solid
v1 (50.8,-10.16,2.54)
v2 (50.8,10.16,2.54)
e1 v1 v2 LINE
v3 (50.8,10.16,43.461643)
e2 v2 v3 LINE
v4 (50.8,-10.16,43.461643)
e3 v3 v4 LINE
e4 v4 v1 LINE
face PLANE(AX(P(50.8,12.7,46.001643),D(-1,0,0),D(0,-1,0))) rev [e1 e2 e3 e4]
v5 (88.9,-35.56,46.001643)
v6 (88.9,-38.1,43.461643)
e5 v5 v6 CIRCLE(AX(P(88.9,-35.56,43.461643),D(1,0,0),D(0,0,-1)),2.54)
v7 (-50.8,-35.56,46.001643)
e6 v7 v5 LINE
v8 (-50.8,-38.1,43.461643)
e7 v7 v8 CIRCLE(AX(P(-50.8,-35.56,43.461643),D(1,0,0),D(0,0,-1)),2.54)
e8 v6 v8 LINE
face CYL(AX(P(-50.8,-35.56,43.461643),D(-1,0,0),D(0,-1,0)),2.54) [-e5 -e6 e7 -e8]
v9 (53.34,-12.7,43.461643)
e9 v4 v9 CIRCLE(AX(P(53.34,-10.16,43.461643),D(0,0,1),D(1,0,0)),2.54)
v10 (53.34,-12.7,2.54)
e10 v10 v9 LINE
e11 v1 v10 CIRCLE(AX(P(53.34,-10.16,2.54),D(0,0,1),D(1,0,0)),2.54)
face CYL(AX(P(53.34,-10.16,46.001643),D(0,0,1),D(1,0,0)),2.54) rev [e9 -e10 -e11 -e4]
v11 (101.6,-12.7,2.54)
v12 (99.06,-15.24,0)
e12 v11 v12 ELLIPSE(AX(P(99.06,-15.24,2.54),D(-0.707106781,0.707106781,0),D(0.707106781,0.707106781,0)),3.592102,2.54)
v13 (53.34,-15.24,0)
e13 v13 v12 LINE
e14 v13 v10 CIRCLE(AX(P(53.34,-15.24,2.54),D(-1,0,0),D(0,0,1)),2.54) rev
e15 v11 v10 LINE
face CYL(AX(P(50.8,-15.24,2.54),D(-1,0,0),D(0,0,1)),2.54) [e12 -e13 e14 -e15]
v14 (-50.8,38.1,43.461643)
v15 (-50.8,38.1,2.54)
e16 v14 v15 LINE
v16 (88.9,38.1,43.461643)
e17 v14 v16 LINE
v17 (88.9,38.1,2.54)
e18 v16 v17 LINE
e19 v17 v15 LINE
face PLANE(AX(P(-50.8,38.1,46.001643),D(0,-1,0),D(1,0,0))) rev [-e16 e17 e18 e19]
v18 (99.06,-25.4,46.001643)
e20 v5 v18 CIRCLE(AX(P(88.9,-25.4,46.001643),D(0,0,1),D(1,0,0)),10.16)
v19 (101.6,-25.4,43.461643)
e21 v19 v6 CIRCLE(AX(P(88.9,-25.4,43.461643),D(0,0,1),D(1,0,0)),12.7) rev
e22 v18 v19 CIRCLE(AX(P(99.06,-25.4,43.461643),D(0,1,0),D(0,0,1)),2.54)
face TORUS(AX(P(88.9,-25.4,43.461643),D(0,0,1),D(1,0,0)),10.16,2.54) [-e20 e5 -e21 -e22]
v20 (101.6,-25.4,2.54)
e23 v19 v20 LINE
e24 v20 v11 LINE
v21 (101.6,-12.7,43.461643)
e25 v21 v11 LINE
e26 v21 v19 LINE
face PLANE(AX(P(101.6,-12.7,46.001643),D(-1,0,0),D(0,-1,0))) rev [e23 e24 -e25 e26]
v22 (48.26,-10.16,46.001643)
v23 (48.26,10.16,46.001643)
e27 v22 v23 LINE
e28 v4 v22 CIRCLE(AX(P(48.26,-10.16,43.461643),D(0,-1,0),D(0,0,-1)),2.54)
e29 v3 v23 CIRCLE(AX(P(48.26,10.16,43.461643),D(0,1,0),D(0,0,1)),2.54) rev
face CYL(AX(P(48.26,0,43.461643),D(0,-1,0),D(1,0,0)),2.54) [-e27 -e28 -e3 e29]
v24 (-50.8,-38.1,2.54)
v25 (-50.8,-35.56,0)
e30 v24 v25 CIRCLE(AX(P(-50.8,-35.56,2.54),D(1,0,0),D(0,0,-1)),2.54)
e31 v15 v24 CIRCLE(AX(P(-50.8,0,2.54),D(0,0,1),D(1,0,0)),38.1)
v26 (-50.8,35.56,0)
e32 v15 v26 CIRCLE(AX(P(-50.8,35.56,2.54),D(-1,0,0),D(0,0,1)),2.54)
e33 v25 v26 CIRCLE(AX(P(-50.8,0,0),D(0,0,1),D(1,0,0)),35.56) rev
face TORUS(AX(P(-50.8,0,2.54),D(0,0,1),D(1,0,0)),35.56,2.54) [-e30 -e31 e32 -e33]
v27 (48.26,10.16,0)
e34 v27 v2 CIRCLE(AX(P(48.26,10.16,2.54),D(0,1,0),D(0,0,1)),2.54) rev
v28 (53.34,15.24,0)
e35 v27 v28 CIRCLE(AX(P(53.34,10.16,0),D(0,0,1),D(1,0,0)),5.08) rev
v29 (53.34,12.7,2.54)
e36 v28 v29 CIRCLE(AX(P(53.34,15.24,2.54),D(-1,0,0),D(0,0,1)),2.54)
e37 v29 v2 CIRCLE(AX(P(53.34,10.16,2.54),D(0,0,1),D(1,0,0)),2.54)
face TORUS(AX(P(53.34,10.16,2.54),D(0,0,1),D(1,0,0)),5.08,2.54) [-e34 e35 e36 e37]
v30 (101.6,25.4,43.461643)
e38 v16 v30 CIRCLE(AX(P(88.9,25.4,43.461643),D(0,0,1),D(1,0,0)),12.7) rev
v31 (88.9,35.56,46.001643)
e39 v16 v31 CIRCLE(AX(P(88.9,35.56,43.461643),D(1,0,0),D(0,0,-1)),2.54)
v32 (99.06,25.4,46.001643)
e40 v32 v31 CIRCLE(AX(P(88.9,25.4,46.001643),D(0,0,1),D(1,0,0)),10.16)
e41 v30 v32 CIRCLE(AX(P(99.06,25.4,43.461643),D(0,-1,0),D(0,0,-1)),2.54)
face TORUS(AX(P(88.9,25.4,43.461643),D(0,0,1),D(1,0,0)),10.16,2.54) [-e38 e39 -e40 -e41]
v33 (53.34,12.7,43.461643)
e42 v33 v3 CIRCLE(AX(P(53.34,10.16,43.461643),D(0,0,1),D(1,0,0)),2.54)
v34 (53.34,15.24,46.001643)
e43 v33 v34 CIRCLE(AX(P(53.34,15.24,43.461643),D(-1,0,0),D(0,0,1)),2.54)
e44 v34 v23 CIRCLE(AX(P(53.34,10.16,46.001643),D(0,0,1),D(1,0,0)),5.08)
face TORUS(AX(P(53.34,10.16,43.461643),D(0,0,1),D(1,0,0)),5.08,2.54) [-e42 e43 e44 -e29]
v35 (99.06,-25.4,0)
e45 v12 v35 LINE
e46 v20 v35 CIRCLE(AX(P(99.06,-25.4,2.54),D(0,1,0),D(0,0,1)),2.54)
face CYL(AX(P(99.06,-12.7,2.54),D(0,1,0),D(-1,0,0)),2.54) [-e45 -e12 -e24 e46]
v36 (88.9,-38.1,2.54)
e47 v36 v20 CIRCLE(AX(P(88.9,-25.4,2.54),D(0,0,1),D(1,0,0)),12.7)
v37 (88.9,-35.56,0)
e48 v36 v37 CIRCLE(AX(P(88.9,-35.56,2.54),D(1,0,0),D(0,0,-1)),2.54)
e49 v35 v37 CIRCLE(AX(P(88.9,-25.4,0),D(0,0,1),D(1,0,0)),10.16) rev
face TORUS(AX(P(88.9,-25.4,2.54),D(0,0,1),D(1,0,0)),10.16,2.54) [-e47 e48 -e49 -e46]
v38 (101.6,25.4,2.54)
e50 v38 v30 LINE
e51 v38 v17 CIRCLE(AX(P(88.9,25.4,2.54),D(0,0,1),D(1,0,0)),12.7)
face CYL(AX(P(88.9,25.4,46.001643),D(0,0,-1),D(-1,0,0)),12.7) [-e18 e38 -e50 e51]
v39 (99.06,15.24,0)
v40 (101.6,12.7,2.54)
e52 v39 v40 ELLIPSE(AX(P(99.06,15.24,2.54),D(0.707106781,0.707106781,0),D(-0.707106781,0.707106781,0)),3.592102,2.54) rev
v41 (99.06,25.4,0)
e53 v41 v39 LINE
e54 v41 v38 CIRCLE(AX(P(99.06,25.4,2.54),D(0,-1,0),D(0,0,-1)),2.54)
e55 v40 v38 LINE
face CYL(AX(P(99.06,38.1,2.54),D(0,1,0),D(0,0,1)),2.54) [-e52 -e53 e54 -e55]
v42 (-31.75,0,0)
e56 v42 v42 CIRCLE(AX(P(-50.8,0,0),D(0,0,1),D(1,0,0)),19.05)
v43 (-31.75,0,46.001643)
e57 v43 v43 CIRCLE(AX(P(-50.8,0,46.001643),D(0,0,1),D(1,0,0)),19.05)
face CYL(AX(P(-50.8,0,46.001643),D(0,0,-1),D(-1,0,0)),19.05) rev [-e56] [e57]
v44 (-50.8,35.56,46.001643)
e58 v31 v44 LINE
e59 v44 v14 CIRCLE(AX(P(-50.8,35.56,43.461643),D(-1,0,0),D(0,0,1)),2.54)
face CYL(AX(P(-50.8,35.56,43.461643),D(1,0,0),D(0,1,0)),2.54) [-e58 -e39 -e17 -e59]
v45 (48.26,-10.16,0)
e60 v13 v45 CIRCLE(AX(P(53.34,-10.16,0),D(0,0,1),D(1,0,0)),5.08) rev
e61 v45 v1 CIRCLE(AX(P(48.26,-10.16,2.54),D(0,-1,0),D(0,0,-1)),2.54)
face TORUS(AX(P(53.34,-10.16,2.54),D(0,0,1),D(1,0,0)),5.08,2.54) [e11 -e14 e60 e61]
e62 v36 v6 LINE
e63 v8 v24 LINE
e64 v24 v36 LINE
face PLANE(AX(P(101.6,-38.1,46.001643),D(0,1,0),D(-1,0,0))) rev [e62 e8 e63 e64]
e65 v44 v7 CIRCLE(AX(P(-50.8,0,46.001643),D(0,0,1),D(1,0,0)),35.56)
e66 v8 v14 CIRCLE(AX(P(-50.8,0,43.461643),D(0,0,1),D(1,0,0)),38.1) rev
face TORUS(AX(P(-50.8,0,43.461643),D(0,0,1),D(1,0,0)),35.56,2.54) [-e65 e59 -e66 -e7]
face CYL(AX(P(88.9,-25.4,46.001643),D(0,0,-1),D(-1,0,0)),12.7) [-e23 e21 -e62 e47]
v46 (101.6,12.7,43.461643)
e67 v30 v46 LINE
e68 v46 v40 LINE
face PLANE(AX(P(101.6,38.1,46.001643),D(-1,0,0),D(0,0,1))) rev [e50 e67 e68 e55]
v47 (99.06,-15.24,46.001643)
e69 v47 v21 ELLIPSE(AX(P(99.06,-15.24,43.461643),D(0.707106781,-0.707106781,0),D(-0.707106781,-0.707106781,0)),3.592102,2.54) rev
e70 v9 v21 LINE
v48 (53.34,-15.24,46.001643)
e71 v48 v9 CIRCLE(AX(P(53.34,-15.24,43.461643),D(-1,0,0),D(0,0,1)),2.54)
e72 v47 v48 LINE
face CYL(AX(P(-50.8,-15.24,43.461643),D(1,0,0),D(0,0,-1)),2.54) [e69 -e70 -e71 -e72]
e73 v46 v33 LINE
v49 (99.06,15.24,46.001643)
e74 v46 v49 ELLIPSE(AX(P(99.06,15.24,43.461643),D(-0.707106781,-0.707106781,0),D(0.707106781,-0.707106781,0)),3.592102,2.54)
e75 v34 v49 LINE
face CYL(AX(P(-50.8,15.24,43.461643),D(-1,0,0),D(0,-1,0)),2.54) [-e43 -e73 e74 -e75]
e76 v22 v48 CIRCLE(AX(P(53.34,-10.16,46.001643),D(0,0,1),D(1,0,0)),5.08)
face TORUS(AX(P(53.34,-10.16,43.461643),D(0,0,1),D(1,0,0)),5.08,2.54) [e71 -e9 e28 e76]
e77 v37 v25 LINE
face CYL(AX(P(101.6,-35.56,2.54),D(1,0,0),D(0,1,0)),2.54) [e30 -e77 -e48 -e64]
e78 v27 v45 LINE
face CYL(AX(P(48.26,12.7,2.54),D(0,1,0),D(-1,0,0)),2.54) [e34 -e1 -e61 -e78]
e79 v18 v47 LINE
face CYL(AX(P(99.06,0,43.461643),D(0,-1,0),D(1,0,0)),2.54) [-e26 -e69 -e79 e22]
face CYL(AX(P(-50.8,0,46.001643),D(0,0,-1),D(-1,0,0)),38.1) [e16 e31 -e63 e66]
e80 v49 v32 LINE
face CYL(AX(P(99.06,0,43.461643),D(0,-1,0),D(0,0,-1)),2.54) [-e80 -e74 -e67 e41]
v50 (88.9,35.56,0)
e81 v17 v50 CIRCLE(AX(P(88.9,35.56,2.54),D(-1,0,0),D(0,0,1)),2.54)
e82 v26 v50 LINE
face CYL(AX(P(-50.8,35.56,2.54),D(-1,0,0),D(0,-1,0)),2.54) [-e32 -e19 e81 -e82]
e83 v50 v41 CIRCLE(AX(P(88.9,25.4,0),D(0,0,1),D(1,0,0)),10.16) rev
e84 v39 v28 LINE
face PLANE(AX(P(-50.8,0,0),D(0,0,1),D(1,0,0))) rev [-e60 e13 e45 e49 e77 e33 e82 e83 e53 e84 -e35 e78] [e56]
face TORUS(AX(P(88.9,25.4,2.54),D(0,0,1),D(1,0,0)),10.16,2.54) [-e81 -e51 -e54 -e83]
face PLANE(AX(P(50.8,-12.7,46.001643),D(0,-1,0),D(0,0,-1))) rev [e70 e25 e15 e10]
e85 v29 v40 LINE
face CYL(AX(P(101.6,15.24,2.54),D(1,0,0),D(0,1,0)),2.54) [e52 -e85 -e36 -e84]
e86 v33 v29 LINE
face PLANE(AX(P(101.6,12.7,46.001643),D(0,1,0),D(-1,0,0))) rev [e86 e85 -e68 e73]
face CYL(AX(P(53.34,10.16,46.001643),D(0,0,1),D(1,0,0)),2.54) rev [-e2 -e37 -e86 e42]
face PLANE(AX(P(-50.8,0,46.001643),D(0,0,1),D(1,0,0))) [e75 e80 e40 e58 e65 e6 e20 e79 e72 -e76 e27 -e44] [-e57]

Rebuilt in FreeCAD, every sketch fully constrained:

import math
import FreeCAD as App
import Part
import Sketcher

V = App.Vector
Q = App.Units.Quantity


def edges_at(feature, points):
    """Names of the edges that pass closest to the given points."""
    edges = feature.Shape.Edges
    near = lambda p: min(range(len(edges)), key=lambda i: edges[i].distToShape(Part.Vertex(*p))[0])
    return sorted({f"Edge{near(p) + 1}" for p in points})

doc = App.newDocument("Part")
body = doc.addObject("PartDesign::Body", "Body")

sketch1 = body.newObject("Sketcher::SketchObject", "Sketch")
sketch1.AttachmentSupport = (doc.getObject("XY_Plane"), [""])
sketch1.MapMode = "FlatFace"
sketch1.addGeometry(Part.LineSegment(V(51, 13, 0), V(102, 13, 0)), False)
sketch1.addGeometry(Part.LineSegment(V(102, 13, 0), V(102, 38, 0)), False)
sketch1.addGeometry(Part.LineSegment(V(102, 38, 0), V(-51, 38, 0)), False)
sketch1.addGeometry(Part.ArcOfCircle(Part.Circle(V(-51, 0, 0), V(0, 0, 1), 38), math.radians(90), math.radians(270)), False)
sketch1.addGeometry(Part.LineSegment(V(-51, -38, 0), V(102, -38, 0)), False)
sketch1.addGeometry(Part.LineSegment(V(102, -38, 0), V(102, -13, 0)), False)
sketch1.addGeometry(Part.LineSegment(V(102, -13, 0), V(51, -13, 0)), False)
sketch1.addGeometry(Part.LineSegment(V(51, -13, 0), V(51, 13, 0)), False)
sketch1.addGeometry(Part.Circle(V(-51, 0, 0), V(0, 0, 1), 19), False)
sketch1.addConstraint(Sketcher.Constraint("Coincident", 0, 2, 1, 1))
sketch1.addConstraint(Sketcher.Constraint("Coincident", 1, 2, 2, 1))
sketch1.addConstraint(Sketcher.Constraint("Tangent", 2, 2, 3, 1))
sketch1.addConstraint(Sketcher.Constraint("Tangent", 3, 2, 4, 1))
sketch1.addConstraint(Sketcher.Constraint("Coincident", 4, 2, 5, 1))
sketch1.addConstraint(Sketcher.Constraint("Coincident", 5, 2, 6, 1))
sketch1.addConstraint(Sketcher.Constraint("Coincident", 6, 2, 7, 1))
sketch1.addConstraint(Sketcher.Constraint("Coincident", 7, 2, 0, 1))
sketch1.addConstraint(Sketcher.Constraint("Horizontal", 0))
sketch1.addConstraint(Sketcher.Constraint("Vertical", 1))
sketch1.addConstraint(Sketcher.Constraint("Horizontal", 2))
sketch1.addConstraint(Sketcher.Constraint("Horizontal", 4))
sketch1.addConstraint(Sketcher.Constraint("Vertical", 5))
sketch1.addConstraint(Sketcher.Constraint("Horizontal", 6))
sketch1.addConstraint(Sketcher.Constraint("Vertical", 7))
sketch1.addConstraint(Sketcher.Constraint("Coincident", 8, 3, 3, 3))
sketch1.addConstraint(Sketcher.Constraint("Symmetric", 1, 2, 4, 2, -1))
sketch1.addConstraint(Sketcher.Constraint("Equal", 1, 5))
sketch1.addConstraint(Sketcher.Constraint("Equal", 5, 7))
sketch1.addConstraint(Sketcher.Constraint("Diameter", 8, Q("1.5 in")))
sketch1.addConstraint(Sketcher.Constraint("Radius", 3, Q("1.5 in")))
sketch1.addConstraint(Sketcher.Constraint("DistanceX", 0, 1, 0, 2, Q("2 in")))
sketch1.addConstraint(Sketcher.Constraint("DistanceX", 2, 2, 2, 1, Q("6 in")))
sketch1.addConstraint(Sketcher.Constraint("DistanceX", 3, 3, -1, 1, Q("2 in")))
pad1 = body.newObject("PartDesign::Pad", "Pad")
pad1.Profile = sketch1
pad1.Length = 46.001643
doc.recompute()

fillet = body.newObject("PartDesign::Fillet", "Fillet")
fillet.Base = (pad1, edges_at(pad1, [(101.6, 38.1, 23.001), (101.6, -38.1, 23.001)]))
fillet.Radius = Q("0.5 in")
doc.recompute()

fillet2 = body.newObject("PartDesign::Fillet", "Fillet001")
fillet2.Base = (fillet, edges_at(fillet, [
    (19.05, -38.1, 0),
    (-88.9, 0, 0),
    (76.2, -12.7, 46.002),
    (50.8, 12.7, 23.001),
    (50.8, -12.7, 23.001),
    (50.8, 0, 46.002),
    (76.2, 12.7, 46.002),
    (101.6, 19.05, 46.002),
    (101.6, -19.05, 0),
    (101.6, -19.05, 46.002),
    (19.05, 38.1, 0),
    (97.88, 34.38, 0),
    (97.88, -34.38, 0),
    (19.05, 38.1, 46.002),
    (97.88, 34.38, 46.002),
    (97.88, -34.38, 46.002),
    (-88.9, 0, 46.002),
    (19.05, -38.1, 46.002),
    (101.6, 19.05, 0),
    (76.2, 12.7, 0),
    (50.8, 0, 0),
    (76.2, -12.7, 0),
]))
fillet2.Radius = Q("0.1 in")

doc.recompute()
